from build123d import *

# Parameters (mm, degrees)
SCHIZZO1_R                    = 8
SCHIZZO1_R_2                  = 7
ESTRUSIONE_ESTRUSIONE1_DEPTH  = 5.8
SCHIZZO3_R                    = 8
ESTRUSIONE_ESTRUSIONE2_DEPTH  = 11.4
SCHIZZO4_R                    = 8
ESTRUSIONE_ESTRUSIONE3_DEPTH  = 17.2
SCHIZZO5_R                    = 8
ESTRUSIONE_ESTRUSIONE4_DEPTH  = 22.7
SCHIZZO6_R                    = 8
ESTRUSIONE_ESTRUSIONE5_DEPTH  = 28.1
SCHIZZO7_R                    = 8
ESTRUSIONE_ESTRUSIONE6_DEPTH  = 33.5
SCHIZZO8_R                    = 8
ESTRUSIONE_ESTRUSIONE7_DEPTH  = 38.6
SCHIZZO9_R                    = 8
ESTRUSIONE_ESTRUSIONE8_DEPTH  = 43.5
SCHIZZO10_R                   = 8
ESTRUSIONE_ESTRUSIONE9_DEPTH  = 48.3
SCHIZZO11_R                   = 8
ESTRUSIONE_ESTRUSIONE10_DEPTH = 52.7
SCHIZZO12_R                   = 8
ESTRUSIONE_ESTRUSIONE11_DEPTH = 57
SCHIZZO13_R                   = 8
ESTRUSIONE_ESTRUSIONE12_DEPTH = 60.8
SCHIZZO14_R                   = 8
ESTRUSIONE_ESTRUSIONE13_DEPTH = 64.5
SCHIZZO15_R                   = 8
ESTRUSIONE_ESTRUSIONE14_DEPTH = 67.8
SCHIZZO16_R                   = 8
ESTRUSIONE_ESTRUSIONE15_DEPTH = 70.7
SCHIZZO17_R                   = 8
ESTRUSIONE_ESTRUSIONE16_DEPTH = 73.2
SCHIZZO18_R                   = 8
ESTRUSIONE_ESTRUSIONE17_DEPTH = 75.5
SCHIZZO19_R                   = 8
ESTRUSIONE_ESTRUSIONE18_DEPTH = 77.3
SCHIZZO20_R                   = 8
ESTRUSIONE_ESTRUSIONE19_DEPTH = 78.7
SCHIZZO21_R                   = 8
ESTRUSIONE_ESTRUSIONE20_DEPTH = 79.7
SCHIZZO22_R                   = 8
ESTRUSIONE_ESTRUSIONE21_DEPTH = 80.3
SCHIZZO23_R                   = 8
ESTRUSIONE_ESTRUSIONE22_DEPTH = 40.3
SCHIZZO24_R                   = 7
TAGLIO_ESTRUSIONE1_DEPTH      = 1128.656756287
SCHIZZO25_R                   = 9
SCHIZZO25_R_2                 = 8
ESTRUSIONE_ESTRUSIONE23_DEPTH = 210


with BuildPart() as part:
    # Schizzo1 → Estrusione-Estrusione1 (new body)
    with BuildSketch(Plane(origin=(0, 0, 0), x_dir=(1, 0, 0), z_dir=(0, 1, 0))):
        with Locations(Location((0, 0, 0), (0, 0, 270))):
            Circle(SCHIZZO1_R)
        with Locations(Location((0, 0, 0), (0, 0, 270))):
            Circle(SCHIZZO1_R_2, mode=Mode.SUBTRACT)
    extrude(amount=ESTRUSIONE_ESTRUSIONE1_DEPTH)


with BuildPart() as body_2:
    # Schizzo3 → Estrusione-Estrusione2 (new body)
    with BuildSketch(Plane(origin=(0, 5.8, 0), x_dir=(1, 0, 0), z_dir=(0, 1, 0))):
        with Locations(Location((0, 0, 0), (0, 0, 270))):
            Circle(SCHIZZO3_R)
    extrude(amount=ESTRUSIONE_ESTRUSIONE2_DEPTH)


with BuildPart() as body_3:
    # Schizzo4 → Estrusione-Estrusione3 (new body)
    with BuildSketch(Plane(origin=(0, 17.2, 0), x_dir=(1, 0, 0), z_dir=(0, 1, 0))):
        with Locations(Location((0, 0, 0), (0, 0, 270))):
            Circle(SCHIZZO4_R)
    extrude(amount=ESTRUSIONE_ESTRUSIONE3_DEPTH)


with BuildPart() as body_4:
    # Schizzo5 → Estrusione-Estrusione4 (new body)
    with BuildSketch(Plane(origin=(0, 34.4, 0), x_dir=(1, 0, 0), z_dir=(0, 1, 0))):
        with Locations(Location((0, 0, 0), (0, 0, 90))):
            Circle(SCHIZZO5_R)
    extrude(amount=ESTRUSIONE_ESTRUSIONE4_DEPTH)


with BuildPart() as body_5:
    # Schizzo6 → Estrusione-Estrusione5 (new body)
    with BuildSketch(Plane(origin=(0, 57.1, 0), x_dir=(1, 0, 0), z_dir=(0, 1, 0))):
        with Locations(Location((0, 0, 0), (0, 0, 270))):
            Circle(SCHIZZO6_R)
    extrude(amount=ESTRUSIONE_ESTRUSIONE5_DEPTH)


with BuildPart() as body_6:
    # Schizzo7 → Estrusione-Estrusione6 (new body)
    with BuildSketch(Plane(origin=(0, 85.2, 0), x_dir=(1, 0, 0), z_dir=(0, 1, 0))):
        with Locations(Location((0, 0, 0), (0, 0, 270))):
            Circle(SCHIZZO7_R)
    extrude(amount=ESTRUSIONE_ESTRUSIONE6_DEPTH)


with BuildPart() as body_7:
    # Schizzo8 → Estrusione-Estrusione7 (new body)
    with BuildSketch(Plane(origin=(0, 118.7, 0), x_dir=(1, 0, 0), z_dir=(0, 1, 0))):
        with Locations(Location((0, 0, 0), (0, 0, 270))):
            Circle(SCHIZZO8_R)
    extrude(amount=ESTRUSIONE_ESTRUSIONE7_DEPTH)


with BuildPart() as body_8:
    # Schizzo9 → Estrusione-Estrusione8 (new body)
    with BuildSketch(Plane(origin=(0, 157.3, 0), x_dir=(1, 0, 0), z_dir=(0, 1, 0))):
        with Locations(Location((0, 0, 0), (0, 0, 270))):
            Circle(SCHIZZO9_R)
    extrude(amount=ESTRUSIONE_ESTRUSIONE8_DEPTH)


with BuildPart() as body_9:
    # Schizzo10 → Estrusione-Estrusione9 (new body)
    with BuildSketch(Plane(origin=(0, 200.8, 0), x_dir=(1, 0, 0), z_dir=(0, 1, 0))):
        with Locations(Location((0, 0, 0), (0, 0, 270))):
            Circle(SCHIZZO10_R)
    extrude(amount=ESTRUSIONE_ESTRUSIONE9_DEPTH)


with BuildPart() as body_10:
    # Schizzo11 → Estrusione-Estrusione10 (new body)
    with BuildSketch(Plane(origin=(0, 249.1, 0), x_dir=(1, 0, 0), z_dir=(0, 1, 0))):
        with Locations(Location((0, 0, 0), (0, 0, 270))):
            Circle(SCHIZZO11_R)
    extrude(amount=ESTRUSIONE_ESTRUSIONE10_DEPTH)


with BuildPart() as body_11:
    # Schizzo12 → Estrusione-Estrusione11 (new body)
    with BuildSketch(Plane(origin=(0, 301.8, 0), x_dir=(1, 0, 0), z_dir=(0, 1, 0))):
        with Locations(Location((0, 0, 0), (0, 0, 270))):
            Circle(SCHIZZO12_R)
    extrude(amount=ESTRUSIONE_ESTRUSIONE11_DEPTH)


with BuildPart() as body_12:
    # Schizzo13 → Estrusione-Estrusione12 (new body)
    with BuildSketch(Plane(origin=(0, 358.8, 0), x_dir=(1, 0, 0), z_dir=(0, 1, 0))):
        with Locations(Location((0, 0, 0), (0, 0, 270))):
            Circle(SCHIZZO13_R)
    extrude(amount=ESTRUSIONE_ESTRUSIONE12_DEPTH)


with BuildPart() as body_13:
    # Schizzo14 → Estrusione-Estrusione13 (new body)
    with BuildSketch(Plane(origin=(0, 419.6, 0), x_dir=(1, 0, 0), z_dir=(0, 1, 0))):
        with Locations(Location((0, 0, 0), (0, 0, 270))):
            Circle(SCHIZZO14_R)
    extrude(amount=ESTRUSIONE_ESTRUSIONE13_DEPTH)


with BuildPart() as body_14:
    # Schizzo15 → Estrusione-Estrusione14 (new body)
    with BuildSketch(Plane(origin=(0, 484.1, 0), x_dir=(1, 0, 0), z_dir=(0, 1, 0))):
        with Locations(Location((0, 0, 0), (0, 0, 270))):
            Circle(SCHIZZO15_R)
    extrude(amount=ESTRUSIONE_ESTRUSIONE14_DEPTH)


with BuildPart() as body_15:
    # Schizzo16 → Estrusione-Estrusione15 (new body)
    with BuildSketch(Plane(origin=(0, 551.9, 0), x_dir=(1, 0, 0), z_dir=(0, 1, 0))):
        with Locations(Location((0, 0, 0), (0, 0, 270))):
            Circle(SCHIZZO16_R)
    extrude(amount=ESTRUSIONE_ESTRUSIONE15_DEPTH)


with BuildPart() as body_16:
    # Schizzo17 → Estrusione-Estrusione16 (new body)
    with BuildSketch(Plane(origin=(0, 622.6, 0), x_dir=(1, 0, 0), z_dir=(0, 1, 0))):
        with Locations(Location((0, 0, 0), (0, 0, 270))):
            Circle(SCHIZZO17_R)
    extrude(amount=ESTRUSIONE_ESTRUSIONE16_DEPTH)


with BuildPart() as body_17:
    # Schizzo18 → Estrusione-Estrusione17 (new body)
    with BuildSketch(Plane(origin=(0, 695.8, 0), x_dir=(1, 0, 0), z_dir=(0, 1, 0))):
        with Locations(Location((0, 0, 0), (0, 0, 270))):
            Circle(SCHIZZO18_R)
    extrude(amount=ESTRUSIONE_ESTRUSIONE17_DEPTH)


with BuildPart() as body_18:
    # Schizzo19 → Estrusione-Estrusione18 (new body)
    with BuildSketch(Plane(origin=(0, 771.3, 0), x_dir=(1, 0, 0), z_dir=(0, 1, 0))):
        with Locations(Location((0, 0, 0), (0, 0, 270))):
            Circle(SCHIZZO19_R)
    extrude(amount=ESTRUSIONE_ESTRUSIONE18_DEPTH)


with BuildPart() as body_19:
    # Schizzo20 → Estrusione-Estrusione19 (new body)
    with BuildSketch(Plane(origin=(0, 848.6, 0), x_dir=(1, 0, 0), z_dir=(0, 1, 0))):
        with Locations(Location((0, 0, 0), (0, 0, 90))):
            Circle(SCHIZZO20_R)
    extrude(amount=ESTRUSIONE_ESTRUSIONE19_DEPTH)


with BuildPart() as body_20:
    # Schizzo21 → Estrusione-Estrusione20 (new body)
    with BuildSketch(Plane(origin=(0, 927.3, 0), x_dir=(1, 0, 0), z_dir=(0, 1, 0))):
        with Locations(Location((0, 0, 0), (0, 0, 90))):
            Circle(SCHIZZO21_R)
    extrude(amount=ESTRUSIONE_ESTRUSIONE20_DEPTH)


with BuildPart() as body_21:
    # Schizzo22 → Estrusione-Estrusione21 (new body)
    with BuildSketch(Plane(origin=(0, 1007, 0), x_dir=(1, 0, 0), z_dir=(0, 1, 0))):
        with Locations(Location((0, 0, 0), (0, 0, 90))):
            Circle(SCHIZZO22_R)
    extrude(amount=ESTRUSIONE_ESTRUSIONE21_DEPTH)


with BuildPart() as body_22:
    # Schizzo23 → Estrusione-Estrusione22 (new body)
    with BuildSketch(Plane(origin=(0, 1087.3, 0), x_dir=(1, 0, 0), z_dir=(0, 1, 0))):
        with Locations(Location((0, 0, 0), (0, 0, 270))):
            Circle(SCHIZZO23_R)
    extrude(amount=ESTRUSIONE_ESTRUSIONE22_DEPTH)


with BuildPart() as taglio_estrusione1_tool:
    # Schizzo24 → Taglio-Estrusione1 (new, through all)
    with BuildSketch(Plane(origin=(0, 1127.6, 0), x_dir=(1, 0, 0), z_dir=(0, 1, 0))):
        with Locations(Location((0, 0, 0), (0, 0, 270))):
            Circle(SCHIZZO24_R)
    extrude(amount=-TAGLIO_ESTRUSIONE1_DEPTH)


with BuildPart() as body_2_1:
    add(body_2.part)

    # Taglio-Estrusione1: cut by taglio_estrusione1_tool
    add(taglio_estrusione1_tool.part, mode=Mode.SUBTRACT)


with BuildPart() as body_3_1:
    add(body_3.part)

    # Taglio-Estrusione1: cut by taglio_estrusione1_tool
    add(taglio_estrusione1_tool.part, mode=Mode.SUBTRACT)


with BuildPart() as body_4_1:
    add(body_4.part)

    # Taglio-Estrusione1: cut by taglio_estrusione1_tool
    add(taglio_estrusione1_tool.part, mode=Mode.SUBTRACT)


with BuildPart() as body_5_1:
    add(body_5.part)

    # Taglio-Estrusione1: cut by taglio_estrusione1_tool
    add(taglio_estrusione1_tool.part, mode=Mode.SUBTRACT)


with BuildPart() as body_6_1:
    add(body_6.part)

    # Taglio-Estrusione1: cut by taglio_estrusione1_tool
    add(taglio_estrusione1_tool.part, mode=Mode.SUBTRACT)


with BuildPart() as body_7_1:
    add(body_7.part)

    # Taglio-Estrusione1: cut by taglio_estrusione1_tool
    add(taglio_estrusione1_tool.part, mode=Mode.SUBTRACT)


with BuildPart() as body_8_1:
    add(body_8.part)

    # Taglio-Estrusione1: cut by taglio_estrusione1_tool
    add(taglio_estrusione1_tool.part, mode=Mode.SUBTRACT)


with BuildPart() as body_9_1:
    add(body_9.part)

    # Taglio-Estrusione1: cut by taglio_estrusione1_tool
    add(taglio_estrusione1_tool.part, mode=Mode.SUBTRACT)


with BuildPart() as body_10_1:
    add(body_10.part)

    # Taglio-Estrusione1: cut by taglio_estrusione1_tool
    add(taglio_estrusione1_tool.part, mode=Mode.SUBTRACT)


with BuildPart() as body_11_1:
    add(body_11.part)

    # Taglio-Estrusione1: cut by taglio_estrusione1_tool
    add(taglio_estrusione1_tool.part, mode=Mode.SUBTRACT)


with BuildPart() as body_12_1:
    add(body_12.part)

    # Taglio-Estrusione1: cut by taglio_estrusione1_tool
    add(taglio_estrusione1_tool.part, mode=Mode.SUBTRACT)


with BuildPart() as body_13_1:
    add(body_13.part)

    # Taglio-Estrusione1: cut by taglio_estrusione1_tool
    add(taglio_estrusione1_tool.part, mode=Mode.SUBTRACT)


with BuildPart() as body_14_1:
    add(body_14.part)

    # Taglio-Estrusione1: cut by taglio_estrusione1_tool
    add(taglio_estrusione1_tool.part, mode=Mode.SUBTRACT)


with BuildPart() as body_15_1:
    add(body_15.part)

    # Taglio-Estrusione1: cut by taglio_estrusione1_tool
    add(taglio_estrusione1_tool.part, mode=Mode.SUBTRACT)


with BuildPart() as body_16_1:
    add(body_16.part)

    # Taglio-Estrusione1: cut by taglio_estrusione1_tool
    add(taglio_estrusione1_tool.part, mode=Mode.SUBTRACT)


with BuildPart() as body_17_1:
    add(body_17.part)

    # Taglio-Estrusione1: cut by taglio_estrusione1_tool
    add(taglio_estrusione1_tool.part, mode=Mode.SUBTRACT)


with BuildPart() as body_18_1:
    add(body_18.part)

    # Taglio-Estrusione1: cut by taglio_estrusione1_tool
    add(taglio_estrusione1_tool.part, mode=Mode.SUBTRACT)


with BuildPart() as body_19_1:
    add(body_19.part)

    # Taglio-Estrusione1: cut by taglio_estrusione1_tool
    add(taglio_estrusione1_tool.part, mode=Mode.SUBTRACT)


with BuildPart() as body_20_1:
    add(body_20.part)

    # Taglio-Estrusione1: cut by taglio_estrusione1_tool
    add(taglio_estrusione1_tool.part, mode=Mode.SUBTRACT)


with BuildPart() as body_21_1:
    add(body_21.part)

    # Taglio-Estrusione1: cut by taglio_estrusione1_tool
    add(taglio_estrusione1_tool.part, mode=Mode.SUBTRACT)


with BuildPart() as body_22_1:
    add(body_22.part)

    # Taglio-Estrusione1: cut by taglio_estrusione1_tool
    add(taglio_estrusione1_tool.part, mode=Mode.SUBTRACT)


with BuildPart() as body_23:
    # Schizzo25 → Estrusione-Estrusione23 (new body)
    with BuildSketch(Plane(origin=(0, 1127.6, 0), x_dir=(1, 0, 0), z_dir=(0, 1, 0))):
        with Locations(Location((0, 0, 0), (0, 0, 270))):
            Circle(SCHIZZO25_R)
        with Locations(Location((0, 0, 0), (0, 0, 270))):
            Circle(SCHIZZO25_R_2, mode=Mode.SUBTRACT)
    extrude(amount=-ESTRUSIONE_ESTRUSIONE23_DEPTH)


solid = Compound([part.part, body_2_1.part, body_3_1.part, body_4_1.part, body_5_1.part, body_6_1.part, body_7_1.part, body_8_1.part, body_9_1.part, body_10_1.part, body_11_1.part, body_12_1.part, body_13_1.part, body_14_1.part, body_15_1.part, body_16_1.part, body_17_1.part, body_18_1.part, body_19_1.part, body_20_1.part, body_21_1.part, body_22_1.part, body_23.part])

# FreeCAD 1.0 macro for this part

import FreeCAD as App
import Part
import Sketcher

V = App.Vector

doc = App.newDocument("Part")
params = doc.addObject("Spreadsheet::Sheet", "Params")
for row, (alias, value) in enumerate([
    ("sketch1_diameter", "16 mm"),
    ("sketch1_diameter2", "14 mm"),
    ("pad1_length", "5.8 mm"),
    ("sketch2_diameter", "16 mm"),
    ("pad2_length", "11.4 mm"),
    ("sketch3_diameter", "16 mm"),
    ("pad3_length", "17.2 mm"),
    ("sketch4_diameter", "16 mm"),
    ("pad4_length", "22.7 mm"),
    ("sketch5_diameter", "16 mm"),
    ("pad5_length", "28.1 mm"),
    ("sketch6_diameter", "16 mm"),
    ("pad6_length", "33.5 mm"),
    ("sketch7_diameter", "16 mm"),
    ("pad7_length", "38.6 mm"),
    ("sketch8_diameter", "16 mm"),
    ("pad8_length", "43.5 mm"),
    ("sketch9_diameter", "16 mm"),
    ("pad9_length", "48.3 mm"),
    ("sketch10_diameter", "16 mm"),
    ("pad10_length", "52.7 mm"),
    ("sketch11_diameter", "16 mm"),
    ("pad11_length", "57 mm"),
    ("sketch12_diameter", "16 mm"),
    ("pad12_length", "60.8 mm"),
    ("sketch13_diameter", "16 mm"),
    ("pad13_length", "64.5 mm"),
    ("sketch14_diameter", "16 mm"),
    ("pad14_length", "67.8 mm"),
    ("sketch15_diameter", "16 mm"),
    ("pad15_length", "70.7 mm"),
    ("sketch16_diameter", "16 mm"),
    ("pad16_length", "73.2 mm"),
    ("sketch17_diameter", "16 mm"),
    ("pad17_length", "75.5 mm"),
    ("sketch18_diameter", "16 mm"),
    ("pad18_length", "77.3 mm"),
    ("sketch19_diameter", "16 mm"),
    ("pad19_length", "78.7 mm"),
    ("sketch20_diameter", "16 mm"),
    ("pad20_length", "79.7 mm"),
    ("sketch21_diameter", "16 mm"),
    ("pad21_length", "80.3 mm"),
    ("sketch22_diameter", "16 mm"),
    ("pad22_length", "40.3 mm"),
    ("sketch23_diameter", "14 mm"),
    ("pad23_length", "1128.656756 mm"),
    ("sketch24_diameter", "18 mm"),
    ("sketch24_diameter2", "16 mm"),
    ("pad24_length", "210 mm"),
], start=1):
    params.set(f"A{row}", alias)
    params.set(f"B{row}", "=" + value)
    params.setAlias(f"B{row}", alias)

body = doc.addObject("PartDesign::Body", "Body")

sketch1 = doc.addObject("Sketcher::SketchObject", "Sketch")
body.addObject(sketch1)
sketch1.AttachmentSupport = (doc.XZ_Plane, [""])
sketch1.MapMode = "FlatFace"
sketch1.addGeometry([
    Part.Circle(V(0, 0, 0), V(0, 0, 1), 8),
    Part.Circle(V(0, 0, 0), V(0, 0, 1), 7),
], False)
sketch1.addConstraint([
    Sketcher.Constraint("Coincident", 0, 3, -1, 1),
    Sketcher.Constraint("Coincident", 1, 3, -1, 1),
    Sketcher.Constraint("Diameter", 0, 16.0),
    Sketcher.Constraint("Diameter", 1, 14.0),
])
sketch1.setExpression("Constraints[2]", "Params.sketch1_diameter")
sketch1.setExpression("Constraints[3]", "Params.sketch1_diameter2")
pad1 = doc.addObject("PartDesign::Pad", "Pad")
body.addObject(pad1)
pad1.Profile = sketch1
pad1.setExpression("Length", "Params.pad1_length")
pad1.Reversed = True
body2 = doc.addObject("PartDesign::Body", "Body001")

sketch2 = doc.addObject("Sketcher::SketchObject", "Sketch001")
body2.addObject(sketch2)
sketch2.AttachmentSupport = (doc.getObject("XZ_Plane001"), [""])
sketch2.MapMode = "FlatFace"
sketch2.AttachmentOffset = App.Placement(V(0, 0, -5.8), App.Rotation())
sketch2.addGeometry(Part.Circle(V(0, 0, 0), V(0, 0, 1), 8), False)
sketch2.addConstraint([
    Sketcher.Constraint("Coincident", 0, 3, -1, 1),
    Sketcher.Constraint("Diameter", 0, 16.0),
])
sketch2.setExpression("Constraints[1]", "Params.sketch2_diameter")
pad2 = doc.addObject("PartDesign::Pad", "Pad001")
body2.addObject(pad2)
pad2.Profile = sketch2
pad2.setExpression("Length", "Params.pad2_length")
pad2.Reversed = True
body3 = doc.addObject("PartDesign::Body", "Body002")

sketch3 = doc.addObject("Sketcher::SketchObject", "Sketch002")
body3.addObject(sketch3)
sketch3.AttachmentSupport = (doc.getObject("XZ_Plane002"), [""])
sketch3.MapMode = "FlatFace"
sketch3.AttachmentOffset = App.Placement(V(0, 0, -17.2), App.Rotation())
sketch3.addGeometry(Part.Circle(V(0, 0, 0), V(0, 0, 1), 8), False)
sketch3.addConstraint([
    Sketcher.Constraint("Coincident", 0, 3, -1, 1),
    Sketcher.Constraint("Diameter", 0, 16.0),
])
sketch3.setExpression("Constraints[1]", "Params.sketch3_diameter")
pad3 = doc.addObject("PartDesign::Pad", "Pad002")
body3.addObject(pad3)
pad3.Profile = sketch3
pad3.setExpression("Length", "Params.pad3_length")
pad3.Reversed = True
body4 = doc.addObject("PartDesign::Body", "Body003")

sketch4 = doc.addObject("Sketcher::SketchObject", "Sketch003")
body4.addObject(sketch4)
sketch4.AttachmentSupport = (doc.getObject("XZ_Plane003"), [""])
sketch4.MapMode = "FlatFace"
sketch4.AttachmentOffset = App.Placement(V(0, 0, -34.4), App.Rotation())
sketch4.addGeometry(Part.Circle(V(0, 0, 0), V(0, 0, 1), 8), False)
sketch4.addConstraint([
    Sketcher.Constraint("Coincident", 0, 3, -1, 1),
    Sketcher.Constraint("Diameter", 0, 16.0),
])
sketch4.setExpression("Constraints[1]", "Params.sketch4_diameter")
pad4 = doc.addObject("PartDesign::Pad", "Pad003")
body4.addObject(pad4)
pad4.Profile = sketch4
pad4.setExpression("Length", "Params.pad4_length")
pad4.Reversed = True
body5 = doc.addObject("PartDesign::Body", "Body004")

sketch5 = doc.addObject("Sketcher::SketchObject", "Sketch004")
body5.addObject(sketch5)
sketch5.AttachmentSupport = (doc.getObject("XZ_Plane004"), [""])
sketch5.MapMode = "FlatFace"
sketch5.AttachmentOffset = App.Placement(V(0, 0, -57.1), App.Rotation())
sketch5.addGeometry(Part.Circle(V(0, 0, 0), V(0, 0, 1), 8), False)
sketch5.addConstraint([
    Sketcher.Constraint("Coincident", 0, 3, -1, 1),
    Sketcher.Constraint("Diameter", 0, 16.0),
])
sketch5.setExpression("Constraints[1]", "Params.sketch5_diameter")
pad5 = doc.addObject("PartDesign::Pad", "Pad004")
body5.addObject(pad5)
pad5.Profile = sketch5
pad5.setExpression("Length", "Params.pad5_length")
pad5.Reversed = True
body6 = doc.addObject("PartDesign::Body", "Body005")

sketch6 = doc.addObject("Sketcher::SketchObject", "Sketch005")
body6.addObject(sketch6)
sketch6.AttachmentSupport = (doc.getObject("XZ_Plane005"), [""])
sketch6.MapMode = "FlatFace"
sketch6.AttachmentOffset = App.Placement(V(0, 0, -85.2), App.Rotation())
sketch6.addGeometry(Part.Circle(V(0, 0, 0), V(0, 0, 1), 8), False)
sketch6.addConstraint([
    Sketcher.Constraint("Coincident", 0, 3, -1, 1),
    Sketcher.Constraint("Diameter", 0, 16.0),
])
sketch6.setExpression("Constraints[1]", "Params.sketch6_diameter")
pad6 = doc.addObject("PartDesign::Pad", "Pad005")
body6.addObject(pad6)
pad6.Profile = sketch6
pad6.setExpression("Length", "Params.pad6_length")
pad6.Reversed = True
body7 = doc.addObject("PartDesign::Body", "Body006")

sketch7 = doc.addObject("Sketcher::SketchObject", "Sketch006")
body7.addObject(sketch7)
sketch7.AttachmentSupport = (doc.getObject("XZ_Plane006"), [""])
sketch7.MapMode = "FlatFace"
sketch7.AttachmentOffset = App.Placement(V(0, 0, -118.7), App.Rotation())
sketch7.addGeometry(Part.Circle(V(0, 0, 0), V(0, 0, 1), 8), False)
sketch7.addConstraint([
    Sketcher.Constraint("Coincident", 0, 3, -1, 1),
    Sketcher.Constraint("Diameter", 0, 16.0),
])
sketch7.setExpression("Constraints[1]", "Params.sketch7_diameter")
pad7 = doc.addObject("PartDesign::Pad", "Pad006")
body7.addObject(pad7)
pad7.Profile = sketch7
pad7.setExpression("Length", "Params.pad7_length")
pad7.Reversed = True
body8 = doc.addObject("PartDesign::Body", "Body007")

sketch8 = doc.addObject("Sketcher::SketchObject", "Sketch007")
body8.addObject(sketch8)
sketch8.AttachmentSupport = (doc.getObject("XZ_Plane007"), [""])
sketch8.MapMode = "FlatFace"
sketch8.AttachmentOffset = App.Placement(V(0, 0, -157.3), App.Rotation())
sketch8.addGeometry(Part.Circle(V(0, 0, 0), V(0, 0, 1), 8), False)
sketch8.addConstraint([
    Sketcher.Constraint("Coincident", 0, 3, -1, 1),
    Sketcher.Constraint("Diameter", 0, 16.0),
])
sketch8.setExpression("Constraints[1]", "Params.sketch8_diameter")
pad8 = doc.addObject("PartDesign::Pad", "Pad007")
body8.addObject(pad8)
pad8.Profile = sketch8
pad8.setExpression("Length", "Params.pad8_length")
pad8.Reversed = True
body9 = doc.addObject("PartDesign::Body", "Body008")

sketch9 = doc.addObject("Sketcher::SketchObject", "Sketch008")
body9.addObject(sketch9)
sketch9.AttachmentSupport = (doc.getObject("XZ_Plane008"), [""])
sketch9.MapMode = "FlatFace"
sketch9.AttachmentOffset = App.Placement(V(0, 0, -200.8), App.Rotation())
sketch9.addGeometry(Part.Circle(V(0, 0, 0), V(0, 0, 1), 8), False)
sketch9.addConstraint([
    Sketcher.Constraint("Coincident", 0, 3, -1, 1),
    Sketcher.Constraint("Diameter", 0, 16.0),
])
sketch9.setExpression("Constraints[1]", "Params.sketch9_diameter")
pad9 = doc.addObject("PartDesign::Pad", "Pad008")
body9.addObject(pad9)
pad9.Profile = sketch9
pad9.setExpression("Length", "Params.pad9_length")
pad9.Reversed = True
body10 = doc.addObject("PartDesign::Body", "Body009")

sketch10 = doc.addObject("Sketcher::SketchObject", "Sketch009")
body10.addObject(sketch10)
sketch10.AttachmentSupport = (doc.getObject("XZ_Plane009"), [""])
sketch10.MapMode = "FlatFace"
sketch10.AttachmentOffset = App.Placement(V(0, 0, -249.1), App.Rotation())
sketch10.addGeometry(Part.Circle(V(0, 0, 0), V(0, 0, 1), 8), False)
sketch10.addConstraint([
    Sketcher.Constraint("Coincident", 0, 3, -1, 1),
    Sketcher.Constraint("Diameter", 0, 16.0),
])
sketch10.setExpression("Constraints[1]", "Params.sketch10_diameter")
pad10 = doc.addObject("PartDesign::Pad", "Pad009")
body10.addObject(pad10)
pad10.Profile = sketch10
pad10.setExpression("Length", "Params.pad10_length")
pad10.Reversed = True
body11 = doc.addObject("PartDesign::Body", "Body010")

sketch11 = doc.addObject("Sketcher::SketchObject", "Sketch010")
body11.addObject(sketch11)
sketch11.AttachmentSupport = (doc.getObject("XZ_Plane010"), [""])
sketch11.MapMode = "FlatFace"
sketch11.AttachmentOffset = App.Placement(V(0, 0, -301.8), App.Rotation())
sketch11.addGeometry(Part.Circle(V(0, 0, 0), V(0, 0, 1), 8), False)
sketch11.addConstraint([
    Sketcher.Constraint("Coincident", 0, 3, -1, 1),
    Sketcher.Constraint("Diameter", 0, 16.0),
])
sketch11.setExpression("Constraints[1]", "Params.sketch11_diameter")
pad11 = doc.addObject("PartDesign::Pad", "Pad010")
body11.addObject(pad11)
pad11.Profile = sketch11
pad11.setExpression("Length", "Params.pad11_length")
pad11.Reversed = True
body12 = doc.addObject("PartDesign::Body", "Body011")

sketch12 = doc.addObject("Sketcher::SketchObject", "Sketch011")
body12.addObject(sketch12)
sketch12.AttachmentSupport = (doc.getObject("XZ_Plane011"), [""])
sketch12.MapMode = "FlatFace"
sketch12.AttachmentOffset = App.Placement(V(0, 0, -358.8), App.Rotation())
sketch12.addGeometry(Part.Circle(V(0, 0, 0), V(0, 0, 1), 8), False)
sketch12.addConstraint([
    Sketcher.Constraint("Coincident", 0, 3, -1, 1),
    Sketcher.Constraint("Diameter", 0, 16.0),
])
sketch12.setExpression("Constraints[1]", "Params.sketch12_diameter")
pad12 = doc.addObject("PartDesign::Pad", "Pad011")
body12.addObject(pad12)
pad12.Profile = sketch12
pad12.setExpression("Length", "Params.pad12_length")
pad12.Reversed = True
body13 = doc.addObject("PartDesign::Body", "Body012")

sketch13 = doc.addObject("Sketcher::SketchObject", "Sketch012")
body13.addObject(sketch13)
sketch13.AttachmentSupport = (doc.getObject("XZ_Plane012"), [""])
sketch13.MapMode = "FlatFace"
sketch13.AttachmentOffset = App.Placement(V(0, 0, -419.6), App.Rotation())
sketch13.addGeometry(Part.Circle(V(0, 0, 0), V(0, 0, 1), 8), False)
sketch13.addConstraint([
    Sketcher.Constraint("Coincident", 0, 3, -1, 1),
    Sketcher.Constraint("Diameter", 0, 16.0),
])
sketch13.setExpression("Constraints[1]", "Params.sketch13_diameter")
pad13 = doc.addObject("PartDesign::Pad", "Pad012")
body13.addObject(pad13)
pad13.Profile = sketch13
pad13.setExpression("Length", "Params.pad13_length")
pad13.Reversed = True
body14 = doc.addObject("PartDesign::Body", "Body013")

sketch14 = doc.addObject("Sketcher::SketchObject", "Sketch013")
body14.addObject(sketch14)
sketch14.AttachmentSupport = (doc.getObject("XZ_Plane013"), [""])
sketch14.MapMode = "FlatFace"
sketch14.AttachmentOffset = App.Placement(V(0, 0, -484.1), App.Rotation())
sketch14.addGeometry(Part.Circle(V(0, 0, 0), V(0, 0, 1), 8), False)
sketch14.addConstraint([
    Sketcher.Constraint("Coincident", 0, 3, -1, 1),
    Sketcher.Constraint("Diameter", 0, 16.0),
])
sketch14.setExpression("Constraints[1]", "Params.sketch14_diameter")
pad14 = doc.addObject("PartDesign::Pad", "Pad013")
body14.addObject(pad14)
pad14.Profile = sketch14
pad14.setExpression("Length", "Params.pad14_length")
pad14.Reversed = True
body15 = doc.addObject("PartDesign::Body", "Body014")

sketch15 = doc.addObject("Sketcher::SketchObject", "Sketch014")
body15.addObject(sketch15)
sketch15.AttachmentSupport = (doc.getObject("XZ_Plane014"), [""])
sketch15.MapMode = "FlatFace"
sketch15.AttachmentOffset = App.Placement(V(0, 0, -551.9), App.Rotation())
sketch15.addGeometry(Part.Circle(V(0, 0, 0), V(0, 0, 1), 8), False)
sketch15.addConstraint([
    Sketcher.Constraint("Coincident", 0, 3, -1, 1),
    Sketcher.Constraint("Diameter", 0, 16.0),
])
sketch15.setExpression("Constraints[1]", "Params.sketch15_diameter")
pad15 = doc.addObject("PartDesign::Pad", "Pad014")
body15.addObject(pad15)
pad15.Profile = sketch15
pad15.setExpression("Length", "Params.pad15_length")
pad15.Reversed = True
body16 = doc.addObject("PartDesign::Body", "Body015")

sketch16 = doc.addObject("Sketcher::SketchObject", "Sketch015")
body16.addObject(sketch16)
sketch16.AttachmentSupport = (doc.getObject("XZ_Plane015"), [""])
sketch16.MapMode = "FlatFace"
sketch16.AttachmentOffset = App.Placement(V(0, 0, -622.6), App.Rotation())
sketch16.addGeometry(Part.Circle(V(0, 0, 0), V(0, 0, 1), 8), False)
sketch16.addConstraint([
    Sketcher.Constraint("Coincident", 0, 3, -1, 1),
    Sketcher.Constraint("Diameter", 0, 16.0),
])
sketch16.setExpression("Constraints[1]", "Params.sketch16_diameter")
pad16 = doc.addObject("PartDesign::Pad", "Pad015")
body16.addObject(pad16)
pad16.Profile = sketch16
pad16.setExpression("Length", "Params.pad16_length")
pad16.Reversed = True
body17 = doc.addObject("PartDesign::Body", "Body016")

sketch17 = doc.addObject("Sketcher::SketchObject", "Sketch016")
body17.addObject(sketch17)
sketch17.AttachmentSupport = (doc.getObject("XZ_Plane016"), [""])
sketch17.MapMode = "FlatFace"
sketch17.AttachmentOffset = App.Placement(V(0, 0, -695.8), App.Rotation())
sketch17.addGeometry(Part.Circle(V(0, 0, 0), V(0, 0, 1), 8), False)
sketch17.addConstraint([
    Sketcher.Constraint("Coincident", 0, 3, -1, 1),
    Sketcher.Constraint("Diameter", 0, 16.0),
])
sketch17.setExpression("Constraints[1]", "Params.sketch17_diameter")
pad17 = doc.addObject("PartDesign::Pad", "Pad016")
body17.addObject(pad17)
pad17.Profile = sketch17
pad17.setExpression("Length", "Params.pad17_length")
pad17.Reversed = True
body18 = doc.addObject("PartDesign::Body", "Body017")

sketch18 = doc.addObject("Sketcher::SketchObject", "Sketch017")
body18.addObject(sketch18)
sketch18.AttachmentSupport = (doc.getObject("XZ_Plane017"), [""])
sketch18.MapMode = "FlatFace"
sketch18.AttachmentOffset = App.Placement(V(0, 0, -771.3), App.Rotation())
sketch18.addGeometry(Part.Circle(V(0, 0, 0), V(0, 0, 1), 8), False)
sketch18.addConstraint([
    Sketcher.Constraint("Coincident", 0, 3, -1, 1),
    Sketcher.Constraint("Diameter", 0, 16.0),
])
sketch18.setExpression("Constraints[1]", "Params.sketch18_diameter")
pad18 = doc.addObject("PartDesign::Pad", "Pad017")
body18.addObject(pad18)
pad18.Profile = sketch18
pad18.setExpression("Length", "Params.pad18_length")
pad18.Reversed = True
body19 = doc.addObject("PartDesign::Body", "Body018")

sketch19 = doc.addObject("Sketcher::SketchObject", "Sketch018")
body19.addObject(sketch19)
sketch19.AttachmentSupport = (doc.getObject("XZ_Plane018"), [""])
sketch19.MapMode = "FlatFace"
sketch19.AttachmentOffset = App.Placement(V(0, 0, -848.6), App.Rotation())
sketch19.addGeometry(Part.Circle(V(0, 0, 0), V(0, 0, 1), 8), False)
sketch19.addConstraint([
    Sketcher.Constraint("Coincident", 0, 3, -1, 1),
    Sketcher.Constraint("Diameter", 0, 16.0),
])
sketch19.setExpression("Constraints[1]", "Params.sketch19_diameter")
pad19 = doc.addObject("PartDesign::Pad", "Pad018")
body19.addObject(pad19)
pad19.Profile = sketch19
pad19.setExpression("Length", "Params.pad19_length")
pad19.Reversed = True
body20 = doc.addObject("PartDesign::Body", "Body019")

sketch20 = doc.addObject("Sketcher::SketchObject", "Sketch019")
body20.addObject(sketch20)
sketch20.AttachmentSupport = (doc.getObject("XZ_Plane019"), [""])
sketch20.MapMode = "FlatFace"
sketch20.AttachmentOffset = App.Placement(V(0, 0, -927.3), App.Rotation())
sketch20.addGeometry(Part.Circle(V(0, 0, 0), V(0, 0, 1), 8), False)
sketch20.addConstraint([
    Sketcher.Constraint("Coincident", 0, 3, -1, 1),
    Sketcher.Constraint("Diameter", 0, 16.0),
])
sketch20.setExpression("Constraints[1]", "Params.sketch20_diameter")
pad20 = doc.addObject("PartDesign::Pad", "Pad019")
body20.addObject(pad20)
pad20.Profile = sketch20
pad20.setExpression("Length", "Params.pad20_length")
pad20.Reversed = True
body21 = doc.addObject("PartDesign::Body", "Body020")

sketch21 = doc.addObject("Sketcher::SketchObject", "Sketch020")
body21.addObject(sketch21)
sketch21.AttachmentSupport = (doc.getObject("XZ_Plane020"), [""])
sketch21.MapMode = "FlatFace"
sketch21.AttachmentOffset = App.Placement(V(0, 0, -1007), App.Rotation())
sketch21.addGeometry(Part.Circle(V(0, 0, 0), V(0, 0, 1), 8), False)
sketch21.addConstraint([
    Sketcher.Constraint("Coincident", 0, 3, -1, 1),
    Sketcher.Constraint("Diameter", 0, 16.0),
])
sketch21.setExpression("Constraints[1]", "Params.sketch21_diameter")
pad21 = doc.addObject("PartDesign::Pad", "Pad020")
body21.addObject(pad21)
pad21.Profile = sketch21
pad21.setExpression("Length", "Params.pad21_length")
pad21.Reversed = True
body22 = doc.addObject("PartDesign::Body", "Body021")

sketch22 = doc.addObject("Sketcher::SketchObject", "Sketch021")
body22.addObject(sketch22)
sketch22.AttachmentSupport = (doc.getObject("XZ_Plane021"), [""])
sketch22.MapMode = "FlatFace"
sketch22.AttachmentOffset = App.Placement(V(0, 0, -1087.3), App.Rotation())
sketch22.addGeometry(Part.Circle(V(0, 0, 0), V(0, 0, 1), 8), False)
sketch22.addConstraint([
    Sketcher.Constraint("Coincident", 0, 3, -1, 1),
    Sketcher.Constraint("Diameter", 0, 16.0),
])
sketch22.setExpression("Constraints[1]", "Params.sketch22_diameter")
pad22 = doc.addObject("PartDesign::Pad", "Pad021")
body22.addObject(pad22)
pad22.Profile = sketch22
pad22.setExpression("Length", "Params.pad22_length")
pad22.Reversed = True
body23 = doc.addObject("PartDesign::Body", "Body022")

sketch23 = doc.addObject("Sketcher::SketchObject", "Sketch022")
body23.addObject(sketch23)
sketch23.AttachmentSupport = (doc.getObject("XZ_Plane022"), [""])
sketch23.MapMode = "FlatFace"
sketch23.AttachmentOffset = App.Placement(V(0, 0, -1127.6), App.Rotation())
sketch23.addGeometry(Part.Circle(V(0, 0, 0), V(0, 0, 1), 7), False)
sketch23.addConstraint([
    Sketcher.Constraint("Coincident", 0, 3, -1, 1),
    Sketcher.Constraint("Diameter", 0, 14.0),
])
sketch23.setExpression("Constraints[1]", "Params.sketch23_diameter")
pad23 = doc.addObject("PartDesign::Pad", "Pad022")
body23.addObject(pad23)
pad23.Profile = sketch23
pad23.setExpression("Length", "Params.pad23_length")
doc.recompute()

body24 = doc.addObject("PartDesign::Body", "Body023")
body24.BaseFeature = body23
boolean = doc.addObject("PartDesign::Boolean", "Boolean")
body2.addObject(boolean)
boolean.Type = "Cut"
boolean.addObjects([body24])
doc.recompute()

body25 = doc.addObject("PartDesign::Body", "Body024")
body25.BaseFeature = body23
boolean2 = doc.addObject("PartDesign::Boolean", "Boolean001")
body3.addObject(boolean2)
boolean2.Type = "Cut"
boolean2.addObjects([body25])
doc.recompute()

body26 = doc.addObject("PartDesign::Body", "Body025")
body26.BaseFeature = body23
boolean3 = doc.addObject("PartDesign::Boolean", "Boolean002")
body4.addObject(boolean3)
boolean3.Type = "Cut"
boolean3.addObjects([body26])
doc.recompute()

body27 = doc.addObject("PartDesign::Body", "Body026")
body27.BaseFeature = body23
boolean4 = doc.addObject("PartDesign::Boolean", "Boolean003")
body5.addObject(boolean4)
boolean4.Type = "Cut"
boolean4.addObjects([body27])
doc.recompute()

body28 = doc.addObject("PartDesign::Body", "Body027")
body28.BaseFeature = body23
boolean5 = doc.addObject("PartDesign::Boolean", "Boolean004")
body6.addObject(boolean5)
boolean5.Type = "Cut"
boolean5.addObjects([body28])
doc.recompute()

body29 = doc.addObject("PartDesign::Body", "Body028")
body29.BaseFeature = body23
boolean6 = doc.addObject("PartDesign::Boolean", "Boolean005")
body7.addObject(boolean6)
boolean6.Type = "Cut"
boolean6.addObjects([body29])
doc.recompute()

body30 = doc.addObject("PartDesign::Body", "Body029")
body30.BaseFeature = body23
boolean7 = doc.addObject("PartDesign::Boolean", "Boolean006")
body8.addObject(boolean7)
boolean7.Type = "Cut"
boolean7.addObjects([body30])
doc.recompute()

body31 = doc.addObject("PartDesign::Body", "Body030")
body31.BaseFeature = body23
boolean8 = doc.addObject("PartDesign::Boolean", "Boolean007")
body9.addObject(boolean8)
boolean8.Type = "Cut"
boolean8.addObjects([body31])
doc.recompute()

body32 = doc.addObject("PartDesign::Body", "Body031")
body32.BaseFeature = body23
boolean9 = doc.addObject("PartDesign::Boolean", "Boolean008")
body10.addObject(boolean9)
boolean9.Type = "Cut"
boolean9.addObjects([body32])
doc.recompute()

body33 = doc.addObject("PartDesign::Body", "Body032")
body33.BaseFeature = body23
boolean10 = doc.addObject("PartDesign::Boolean", "Boolean009")
body11.addObject(boolean10)
boolean10.Type = "Cut"
boolean10.addObjects([body33])
doc.recompute()

body34 = doc.addObject("PartDesign::Body", "Body033")
body34.BaseFeature = body23
boolean11 = doc.addObject("PartDesign::Boolean", "Boolean010")
body12.addObject(boolean11)
boolean11.Type = "Cut"
boolean11.addObjects([body34])
doc.recompute()

body35 = doc.addObject("PartDesign::Body", "Body034")
body35.BaseFeature = body23
boolean12 = doc.addObject("PartDesign::Boolean", "Boolean011")
body13.addObject(boolean12)
boolean12.Type = "Cut"
boolean12.addObjects([body35])
doc.recompute()

body36 = doc.addObject("PartDesign::Body", "Body035")
body36.BaseFeature = body23
boolean13 = doc.addObject("PartDesign::Boolean", "Boolean012")
body14.addObject(boolean13)
boolean13.Type = "Cut"
boolean13.addObjects([body36])
doc.recompute()

body37 = doc.addObject("PartDesign::Body", "Body036")
body37.BaseFeature = body23
boolean14 = doc.addObject("PartDesign::Boolean", "Boolean013")
body15.addObject(boolean14)
boolean14.Type = "Cut"
boolean14.addObjects([body37])
doc.recompute()

body38 = doc.addObject("PartDesign::Body", "Body037")
body38.BaseFeature = body23
boolean15 = doc.addObject("PartDesign::Boolean", "Boolean014")
body16.addObject(boolean15)
boolean15.Type = "Cut"
boolean15.addObjects([body38])
doc.recompute()

body39 = doc.addObject("PartDesign::Body", "Body038")
body39.BaseFeature = body23
boolean16 = doc.addObject("PartDesign::Boolean", "Boolean015")
body17.addObject(boolean16)
boolean16.Type = "Cut"
boolean16.addObjects([body39])
doc.recompute()

body40 = doc.addObject("PartDesign::Body", "Body039")
body40.BaseFeature = body23
boolean17 = doc.addObject("PartDesign::Boolean", "Boolean016")
body18.addObject(boolean17)
boolean17.Type = "Cut"
boolean17.addObjects([body40])
doc.recompute()

body41 = doc.addObject("PartDesign::Body", "Body040")
body41.BaseFeature = body23
boolean18 = doc.addObject("PartDesign::Boolean", "Boolean017")
body19.addObject(boolean18)
boolean18.Type = "Cut"
boolean18.addObjects([body41])
doc.recompute()

body42 = doc.addObject("PartDesign::Body", "Body041")
body42.BaseFeature = body23
boolean19 = doc.addObject("PartDesign::Boolean", "Boolean018")
body20.addObject(boolean19)
boolean19.Type = "Cut"
boolean19.addObjects([body42])
doc.recompute()

body43 = doc.addObject("PartDesign::Body", "Body042")
body43.BaseFeature = body23
boolean20 = doc.addObject("PartDesign::Boolean", "Boolean019")
body21.addObject(boolean20)
boolean20.Type = "Cut"
boolean20.addObjects([body43])
doc.recompute()

boolean21 = doc.addObject("PartDesign::Boolean", "Boolean020")
body22.addObject(boolean21)
boolean21.Type = "Cut"
boolean21.addObjects([body23])
body44 = doc.addObject("PartDesign::Body", "Body043")

sketch24 = doc.addObject("Sketcher::SketchObject", "Sketch023")
body44.addObject(sketch24)
sketch24.AttachmentSupport = (doc.getObject("XZ_Plane043"), [""])
sketch24.MapMode = "FlatFace"
sketch24.AttachmentOffset = App.Placement(V(0, 0, -1127.6), App.Rotation())
sketch24.addGeometry([
    Part.Circle(V(0, 0, 0), V(0, 0, 1), 9),
    Part.Circle(V(0, 0, 0), V(0, 0, 1), 8),
], False)
sketch24.addConstraint([
    Sketcher.Constraint("Coincident", 0, 3, -1, 1),
    Sketcher.Constraint("Coincident", 1, 3, -1, 1),
    Sketcher.Constraint("Diameter", 0, 18.0),
    Sketcher.Constraint("Diameter", 1, 16.0),
])
sketch24.setExpression("Constraints[2]", "Params.sketch24_diameter")
sketch24.setExpression("Constraints[3]", "Params.sketch24_diameter2")
pad24 = doc.addObject("PartDesign::Pad", "Pad023")
body44.addObject(pad24)
pad24.Profile = sketch24
pad24.setExpression("Length", "Params.pad24_length")

doc.recompute()
